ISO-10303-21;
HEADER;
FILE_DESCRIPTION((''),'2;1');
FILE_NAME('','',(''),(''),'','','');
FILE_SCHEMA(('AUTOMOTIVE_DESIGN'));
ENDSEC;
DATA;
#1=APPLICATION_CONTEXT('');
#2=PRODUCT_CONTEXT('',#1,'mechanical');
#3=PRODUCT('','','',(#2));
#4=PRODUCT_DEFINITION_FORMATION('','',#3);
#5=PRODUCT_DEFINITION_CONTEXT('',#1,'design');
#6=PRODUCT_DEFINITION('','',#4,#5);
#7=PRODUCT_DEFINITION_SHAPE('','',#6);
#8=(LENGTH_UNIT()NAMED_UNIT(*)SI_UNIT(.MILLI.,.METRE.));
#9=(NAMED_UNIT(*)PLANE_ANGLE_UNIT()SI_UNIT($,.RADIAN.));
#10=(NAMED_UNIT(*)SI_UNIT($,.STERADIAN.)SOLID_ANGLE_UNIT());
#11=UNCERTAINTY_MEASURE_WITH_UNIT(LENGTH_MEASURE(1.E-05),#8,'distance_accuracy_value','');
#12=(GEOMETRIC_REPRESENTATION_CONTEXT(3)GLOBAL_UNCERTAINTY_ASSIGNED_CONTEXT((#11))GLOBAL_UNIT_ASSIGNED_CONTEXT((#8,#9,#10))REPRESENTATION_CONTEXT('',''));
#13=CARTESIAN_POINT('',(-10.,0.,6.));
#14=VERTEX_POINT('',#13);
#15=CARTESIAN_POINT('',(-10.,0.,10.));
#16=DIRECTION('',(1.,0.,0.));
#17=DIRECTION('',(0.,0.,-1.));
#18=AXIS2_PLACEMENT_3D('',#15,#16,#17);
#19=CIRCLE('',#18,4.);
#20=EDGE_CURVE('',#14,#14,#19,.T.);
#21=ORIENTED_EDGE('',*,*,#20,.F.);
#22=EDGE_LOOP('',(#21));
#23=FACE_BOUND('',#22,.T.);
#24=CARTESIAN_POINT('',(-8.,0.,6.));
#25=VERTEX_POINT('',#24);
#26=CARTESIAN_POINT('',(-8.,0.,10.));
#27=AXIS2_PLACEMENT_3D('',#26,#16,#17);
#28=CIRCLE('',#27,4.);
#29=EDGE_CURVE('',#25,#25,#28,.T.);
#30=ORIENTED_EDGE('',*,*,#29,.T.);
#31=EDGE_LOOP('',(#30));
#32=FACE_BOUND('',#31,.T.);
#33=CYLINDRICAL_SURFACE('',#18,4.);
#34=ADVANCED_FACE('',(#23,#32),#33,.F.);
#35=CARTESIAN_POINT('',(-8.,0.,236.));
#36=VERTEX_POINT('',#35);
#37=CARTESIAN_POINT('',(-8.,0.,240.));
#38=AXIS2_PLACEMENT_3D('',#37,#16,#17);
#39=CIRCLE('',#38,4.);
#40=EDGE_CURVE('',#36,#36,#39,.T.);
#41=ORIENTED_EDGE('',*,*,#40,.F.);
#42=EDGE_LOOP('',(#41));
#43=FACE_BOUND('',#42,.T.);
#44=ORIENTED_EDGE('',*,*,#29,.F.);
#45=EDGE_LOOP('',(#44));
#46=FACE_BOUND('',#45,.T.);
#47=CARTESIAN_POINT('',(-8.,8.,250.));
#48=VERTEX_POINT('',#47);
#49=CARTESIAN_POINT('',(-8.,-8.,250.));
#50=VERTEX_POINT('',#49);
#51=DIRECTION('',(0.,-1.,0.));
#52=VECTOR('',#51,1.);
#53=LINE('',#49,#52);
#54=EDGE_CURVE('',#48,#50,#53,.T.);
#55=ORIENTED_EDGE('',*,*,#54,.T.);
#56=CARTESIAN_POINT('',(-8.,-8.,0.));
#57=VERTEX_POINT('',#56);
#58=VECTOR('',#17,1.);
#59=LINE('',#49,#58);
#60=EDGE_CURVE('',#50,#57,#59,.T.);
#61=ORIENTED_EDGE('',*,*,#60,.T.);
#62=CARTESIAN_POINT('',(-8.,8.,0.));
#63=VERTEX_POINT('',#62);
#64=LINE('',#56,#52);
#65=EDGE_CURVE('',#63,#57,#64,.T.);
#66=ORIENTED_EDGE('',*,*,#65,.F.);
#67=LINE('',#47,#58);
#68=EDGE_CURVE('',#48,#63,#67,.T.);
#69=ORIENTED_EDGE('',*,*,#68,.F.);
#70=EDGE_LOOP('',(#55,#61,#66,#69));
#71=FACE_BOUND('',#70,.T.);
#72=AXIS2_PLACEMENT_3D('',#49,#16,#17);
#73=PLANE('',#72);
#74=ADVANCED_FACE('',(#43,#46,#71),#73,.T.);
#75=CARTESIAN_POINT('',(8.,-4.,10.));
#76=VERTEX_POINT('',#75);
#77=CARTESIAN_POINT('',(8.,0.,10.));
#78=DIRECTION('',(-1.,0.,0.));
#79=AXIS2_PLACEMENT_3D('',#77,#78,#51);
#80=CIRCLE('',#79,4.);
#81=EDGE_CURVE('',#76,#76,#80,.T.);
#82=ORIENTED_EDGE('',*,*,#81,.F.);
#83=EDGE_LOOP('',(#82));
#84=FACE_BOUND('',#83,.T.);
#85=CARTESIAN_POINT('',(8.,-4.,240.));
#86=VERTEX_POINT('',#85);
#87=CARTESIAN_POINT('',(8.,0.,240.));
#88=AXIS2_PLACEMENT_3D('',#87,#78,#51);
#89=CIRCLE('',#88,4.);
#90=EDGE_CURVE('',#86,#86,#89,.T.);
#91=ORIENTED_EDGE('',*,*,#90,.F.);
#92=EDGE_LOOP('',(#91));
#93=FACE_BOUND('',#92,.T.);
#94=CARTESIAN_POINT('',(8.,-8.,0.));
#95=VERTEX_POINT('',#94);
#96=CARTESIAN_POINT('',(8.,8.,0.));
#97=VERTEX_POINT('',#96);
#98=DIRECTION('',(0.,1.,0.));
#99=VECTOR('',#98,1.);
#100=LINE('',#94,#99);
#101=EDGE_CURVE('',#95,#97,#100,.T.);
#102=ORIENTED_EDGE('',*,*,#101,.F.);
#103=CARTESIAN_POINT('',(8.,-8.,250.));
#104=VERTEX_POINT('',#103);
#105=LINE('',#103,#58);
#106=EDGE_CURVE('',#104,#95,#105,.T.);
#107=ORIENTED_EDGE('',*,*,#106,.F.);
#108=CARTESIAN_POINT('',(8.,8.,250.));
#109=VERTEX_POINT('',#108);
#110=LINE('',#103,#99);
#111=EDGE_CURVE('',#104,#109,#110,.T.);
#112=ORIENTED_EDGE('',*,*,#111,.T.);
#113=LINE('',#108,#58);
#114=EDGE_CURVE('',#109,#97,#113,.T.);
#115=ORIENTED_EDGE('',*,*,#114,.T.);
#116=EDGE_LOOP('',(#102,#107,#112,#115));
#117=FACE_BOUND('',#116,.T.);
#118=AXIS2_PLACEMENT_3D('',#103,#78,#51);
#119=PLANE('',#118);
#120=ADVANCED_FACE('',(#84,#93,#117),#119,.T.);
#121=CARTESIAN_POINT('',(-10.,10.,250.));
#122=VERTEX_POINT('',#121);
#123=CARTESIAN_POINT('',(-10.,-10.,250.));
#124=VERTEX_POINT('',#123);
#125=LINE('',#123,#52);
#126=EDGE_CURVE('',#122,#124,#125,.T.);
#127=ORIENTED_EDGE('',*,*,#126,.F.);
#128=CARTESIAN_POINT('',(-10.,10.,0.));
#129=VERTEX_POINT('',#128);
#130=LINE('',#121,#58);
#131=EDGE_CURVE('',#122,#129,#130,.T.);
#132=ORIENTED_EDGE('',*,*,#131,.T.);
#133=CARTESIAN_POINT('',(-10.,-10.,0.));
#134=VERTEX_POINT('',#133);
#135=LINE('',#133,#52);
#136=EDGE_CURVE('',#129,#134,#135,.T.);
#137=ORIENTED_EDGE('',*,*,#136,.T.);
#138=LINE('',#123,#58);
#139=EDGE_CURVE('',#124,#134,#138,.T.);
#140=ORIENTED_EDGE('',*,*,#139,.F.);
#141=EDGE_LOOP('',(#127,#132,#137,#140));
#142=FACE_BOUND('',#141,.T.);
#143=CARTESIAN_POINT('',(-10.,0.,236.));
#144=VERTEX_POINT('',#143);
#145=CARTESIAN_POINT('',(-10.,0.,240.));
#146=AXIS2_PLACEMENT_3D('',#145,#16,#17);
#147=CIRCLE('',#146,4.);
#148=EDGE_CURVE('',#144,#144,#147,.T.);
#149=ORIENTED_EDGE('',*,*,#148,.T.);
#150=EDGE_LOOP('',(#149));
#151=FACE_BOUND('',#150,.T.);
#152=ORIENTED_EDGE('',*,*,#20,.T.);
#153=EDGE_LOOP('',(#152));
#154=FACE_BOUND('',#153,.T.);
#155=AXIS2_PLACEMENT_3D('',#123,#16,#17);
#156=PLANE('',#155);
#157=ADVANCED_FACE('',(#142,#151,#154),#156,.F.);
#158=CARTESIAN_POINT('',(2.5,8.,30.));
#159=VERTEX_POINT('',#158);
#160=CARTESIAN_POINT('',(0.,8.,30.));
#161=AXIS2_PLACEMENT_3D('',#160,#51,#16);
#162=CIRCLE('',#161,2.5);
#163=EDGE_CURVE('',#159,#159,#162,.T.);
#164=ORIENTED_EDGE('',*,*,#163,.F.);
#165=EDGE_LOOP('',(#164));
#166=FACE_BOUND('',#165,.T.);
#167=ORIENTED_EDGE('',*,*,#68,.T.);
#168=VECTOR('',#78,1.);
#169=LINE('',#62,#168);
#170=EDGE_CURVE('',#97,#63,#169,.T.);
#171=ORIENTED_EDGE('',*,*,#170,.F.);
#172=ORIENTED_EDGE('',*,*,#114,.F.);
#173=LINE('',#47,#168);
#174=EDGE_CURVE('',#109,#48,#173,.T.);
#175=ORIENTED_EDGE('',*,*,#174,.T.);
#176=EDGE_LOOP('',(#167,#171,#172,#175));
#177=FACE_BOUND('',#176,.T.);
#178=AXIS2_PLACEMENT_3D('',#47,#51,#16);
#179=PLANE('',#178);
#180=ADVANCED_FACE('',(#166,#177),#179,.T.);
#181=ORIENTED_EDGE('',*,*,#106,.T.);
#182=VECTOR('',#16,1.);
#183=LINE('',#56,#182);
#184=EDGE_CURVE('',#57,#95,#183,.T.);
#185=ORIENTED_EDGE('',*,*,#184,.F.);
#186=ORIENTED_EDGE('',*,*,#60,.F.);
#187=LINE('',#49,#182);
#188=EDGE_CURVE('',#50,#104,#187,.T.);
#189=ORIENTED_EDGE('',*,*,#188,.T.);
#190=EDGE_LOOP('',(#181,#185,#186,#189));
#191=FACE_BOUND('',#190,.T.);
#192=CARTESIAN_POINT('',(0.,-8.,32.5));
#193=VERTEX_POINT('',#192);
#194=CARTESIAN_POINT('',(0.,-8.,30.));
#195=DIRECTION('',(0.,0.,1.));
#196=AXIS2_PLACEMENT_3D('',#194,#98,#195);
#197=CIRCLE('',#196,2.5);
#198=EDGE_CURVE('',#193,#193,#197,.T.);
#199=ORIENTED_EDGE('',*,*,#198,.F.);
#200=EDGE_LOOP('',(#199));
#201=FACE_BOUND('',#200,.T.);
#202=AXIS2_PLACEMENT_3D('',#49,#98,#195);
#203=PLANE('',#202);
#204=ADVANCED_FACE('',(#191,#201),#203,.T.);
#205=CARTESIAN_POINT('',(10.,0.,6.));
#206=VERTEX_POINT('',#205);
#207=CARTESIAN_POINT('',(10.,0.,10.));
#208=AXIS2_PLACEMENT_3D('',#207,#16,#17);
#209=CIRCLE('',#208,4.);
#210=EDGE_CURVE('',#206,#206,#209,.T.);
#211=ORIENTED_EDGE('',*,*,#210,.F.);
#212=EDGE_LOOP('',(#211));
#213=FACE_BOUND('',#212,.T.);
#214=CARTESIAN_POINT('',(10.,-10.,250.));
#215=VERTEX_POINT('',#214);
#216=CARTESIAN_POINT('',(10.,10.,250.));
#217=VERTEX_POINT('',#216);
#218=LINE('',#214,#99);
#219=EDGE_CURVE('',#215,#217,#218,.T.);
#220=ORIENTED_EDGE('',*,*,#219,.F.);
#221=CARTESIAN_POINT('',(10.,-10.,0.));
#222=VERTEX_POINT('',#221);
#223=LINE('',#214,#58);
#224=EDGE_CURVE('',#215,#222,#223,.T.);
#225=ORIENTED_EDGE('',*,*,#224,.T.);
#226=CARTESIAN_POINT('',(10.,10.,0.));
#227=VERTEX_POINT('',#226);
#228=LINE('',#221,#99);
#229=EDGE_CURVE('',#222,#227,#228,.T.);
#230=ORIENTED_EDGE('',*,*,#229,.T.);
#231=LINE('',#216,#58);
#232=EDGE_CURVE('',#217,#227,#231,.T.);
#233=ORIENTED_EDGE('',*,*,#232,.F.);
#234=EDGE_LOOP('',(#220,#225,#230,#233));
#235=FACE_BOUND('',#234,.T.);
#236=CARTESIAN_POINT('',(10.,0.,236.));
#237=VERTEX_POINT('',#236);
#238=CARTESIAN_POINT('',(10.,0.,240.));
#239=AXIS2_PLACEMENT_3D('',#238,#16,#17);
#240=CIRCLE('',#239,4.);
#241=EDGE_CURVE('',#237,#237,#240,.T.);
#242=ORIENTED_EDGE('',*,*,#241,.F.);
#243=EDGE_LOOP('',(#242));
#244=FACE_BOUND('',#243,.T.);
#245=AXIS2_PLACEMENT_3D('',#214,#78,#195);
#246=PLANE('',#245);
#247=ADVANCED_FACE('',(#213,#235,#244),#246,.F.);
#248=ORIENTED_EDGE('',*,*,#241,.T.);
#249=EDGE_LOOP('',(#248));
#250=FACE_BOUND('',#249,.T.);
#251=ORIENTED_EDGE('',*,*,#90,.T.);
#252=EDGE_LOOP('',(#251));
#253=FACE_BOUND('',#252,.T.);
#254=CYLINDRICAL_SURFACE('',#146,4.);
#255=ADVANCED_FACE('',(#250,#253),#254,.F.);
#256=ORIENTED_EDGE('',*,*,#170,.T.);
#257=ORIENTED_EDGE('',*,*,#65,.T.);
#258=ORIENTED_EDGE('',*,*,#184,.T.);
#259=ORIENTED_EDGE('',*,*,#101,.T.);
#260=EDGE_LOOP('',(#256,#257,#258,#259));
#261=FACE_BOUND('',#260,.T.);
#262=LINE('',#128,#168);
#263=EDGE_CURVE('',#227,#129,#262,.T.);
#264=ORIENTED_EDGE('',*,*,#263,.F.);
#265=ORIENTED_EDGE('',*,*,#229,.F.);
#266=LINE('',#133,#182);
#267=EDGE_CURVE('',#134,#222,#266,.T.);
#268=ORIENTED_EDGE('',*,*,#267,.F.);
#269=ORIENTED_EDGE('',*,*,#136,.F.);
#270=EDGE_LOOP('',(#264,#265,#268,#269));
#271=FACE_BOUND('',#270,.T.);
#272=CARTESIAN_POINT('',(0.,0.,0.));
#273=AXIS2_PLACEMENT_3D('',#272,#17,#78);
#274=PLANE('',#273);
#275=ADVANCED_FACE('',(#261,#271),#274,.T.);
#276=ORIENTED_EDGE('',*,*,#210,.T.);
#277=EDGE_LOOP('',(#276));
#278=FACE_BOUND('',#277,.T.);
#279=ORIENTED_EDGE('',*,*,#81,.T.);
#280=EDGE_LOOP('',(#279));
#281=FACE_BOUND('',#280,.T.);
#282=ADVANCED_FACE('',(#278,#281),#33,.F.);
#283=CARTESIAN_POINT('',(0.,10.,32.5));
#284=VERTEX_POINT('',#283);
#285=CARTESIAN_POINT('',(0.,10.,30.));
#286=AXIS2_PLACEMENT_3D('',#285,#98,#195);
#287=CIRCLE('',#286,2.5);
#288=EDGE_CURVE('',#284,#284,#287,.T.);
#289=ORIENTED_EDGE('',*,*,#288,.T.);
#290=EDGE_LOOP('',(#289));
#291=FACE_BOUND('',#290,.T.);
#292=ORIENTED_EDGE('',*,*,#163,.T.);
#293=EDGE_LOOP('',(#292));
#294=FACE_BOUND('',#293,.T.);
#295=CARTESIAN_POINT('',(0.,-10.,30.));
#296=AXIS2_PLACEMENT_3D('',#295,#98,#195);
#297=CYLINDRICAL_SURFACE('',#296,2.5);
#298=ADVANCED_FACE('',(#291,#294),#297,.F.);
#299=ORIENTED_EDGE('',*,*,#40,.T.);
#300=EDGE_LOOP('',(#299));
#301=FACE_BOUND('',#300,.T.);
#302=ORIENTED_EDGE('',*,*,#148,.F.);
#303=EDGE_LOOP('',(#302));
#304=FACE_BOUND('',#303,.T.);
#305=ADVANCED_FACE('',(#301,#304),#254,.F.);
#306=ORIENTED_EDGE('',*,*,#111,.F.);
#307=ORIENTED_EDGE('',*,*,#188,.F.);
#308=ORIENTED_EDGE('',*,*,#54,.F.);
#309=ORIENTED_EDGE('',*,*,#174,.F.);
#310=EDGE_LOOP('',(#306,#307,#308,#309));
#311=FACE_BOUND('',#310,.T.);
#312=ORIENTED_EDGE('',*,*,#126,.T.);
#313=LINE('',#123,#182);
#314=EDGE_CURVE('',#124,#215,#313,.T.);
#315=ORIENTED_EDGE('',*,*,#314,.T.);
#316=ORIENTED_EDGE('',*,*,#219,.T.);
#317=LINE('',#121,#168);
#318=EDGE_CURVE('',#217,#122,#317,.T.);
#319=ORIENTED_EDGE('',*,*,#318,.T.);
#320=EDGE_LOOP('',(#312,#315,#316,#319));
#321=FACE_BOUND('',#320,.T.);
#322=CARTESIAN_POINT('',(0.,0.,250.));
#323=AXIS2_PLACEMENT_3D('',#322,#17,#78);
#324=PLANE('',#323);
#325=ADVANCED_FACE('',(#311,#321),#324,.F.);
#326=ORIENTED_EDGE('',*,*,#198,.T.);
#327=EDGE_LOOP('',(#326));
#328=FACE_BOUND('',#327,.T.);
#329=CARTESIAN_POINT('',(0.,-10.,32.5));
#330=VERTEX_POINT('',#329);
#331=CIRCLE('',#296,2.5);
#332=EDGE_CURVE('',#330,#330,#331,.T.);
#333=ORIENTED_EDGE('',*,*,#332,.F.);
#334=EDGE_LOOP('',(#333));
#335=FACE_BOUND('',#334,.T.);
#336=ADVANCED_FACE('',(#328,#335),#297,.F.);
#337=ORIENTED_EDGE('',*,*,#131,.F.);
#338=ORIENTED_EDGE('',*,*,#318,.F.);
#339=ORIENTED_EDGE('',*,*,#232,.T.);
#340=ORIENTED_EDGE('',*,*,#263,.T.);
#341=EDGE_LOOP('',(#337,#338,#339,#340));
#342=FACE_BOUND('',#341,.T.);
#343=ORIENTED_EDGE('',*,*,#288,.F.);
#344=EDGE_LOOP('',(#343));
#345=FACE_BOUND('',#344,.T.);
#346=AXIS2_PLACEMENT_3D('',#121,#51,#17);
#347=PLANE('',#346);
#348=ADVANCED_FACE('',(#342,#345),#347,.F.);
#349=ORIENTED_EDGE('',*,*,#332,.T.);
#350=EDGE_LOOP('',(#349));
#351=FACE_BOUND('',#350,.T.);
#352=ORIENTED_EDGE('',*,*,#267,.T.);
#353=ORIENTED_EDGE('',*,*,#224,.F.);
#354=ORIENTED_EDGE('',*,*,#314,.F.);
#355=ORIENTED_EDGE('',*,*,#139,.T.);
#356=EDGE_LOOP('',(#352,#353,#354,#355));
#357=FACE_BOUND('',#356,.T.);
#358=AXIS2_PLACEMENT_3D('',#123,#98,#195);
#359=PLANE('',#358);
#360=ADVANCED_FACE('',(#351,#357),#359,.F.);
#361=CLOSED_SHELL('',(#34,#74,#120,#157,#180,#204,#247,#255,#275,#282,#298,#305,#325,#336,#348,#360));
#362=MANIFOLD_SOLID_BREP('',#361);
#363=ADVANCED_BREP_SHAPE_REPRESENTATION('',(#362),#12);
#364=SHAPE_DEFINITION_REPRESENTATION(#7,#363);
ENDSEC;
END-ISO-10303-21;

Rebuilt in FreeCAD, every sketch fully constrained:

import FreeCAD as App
import Part
import Sketcher

V = App.Vector

doc = App.newDocument("Part")
body = doc.addObject("PartDesign::Body", "Body")

# Sketch on XY plane
sketch1 = body.newObject("Sketcher::SketchObject", "Sketch")
sketch1.AttachmentSupport = (doc.getObject("XY_Plane"), [""])
sketch1.MapMode = "FlatFace"
sketch1.addGeometry(Part.LineSegment(V(-10, 10, 0), V(-10, -10, 0)), False)
sketch1.addGeometry(Part.LineSegment(V(-10, -10, 0), V(10, -10, 0)), False)
sketch1.addGeometry(Part.LineSegment(V(10, -10, 0), V(10, 10, 0)), False)
sketch1.addGeometry(Part.LineSegment(V(10, 10, 0), V(-10, 10, 0)), False)
sketch1.addGeometry(Part.LineSegment(V(8, -8, 0), V(-8, -8, 0)), False)
sketch1.addGeometry(Part.LineSegment(V(-8, -8, 0), V(-8, 8, 0)), False)
sketch1.addGeometry(Part.LineSegment(V(-8, 8, 0), V(8, 8, 0)), False)
sketch1.addGeometry(Part.LineSegment(V(8, 8, 0), V(8, -8, 0)), False)
sketch1.addConstraint(Sketcher.Constraint("Coincident", 0, 2, 1, 1))
sketch1.addConstraint(Sketcher.Constraint("Coincident", 1, 2, 2, 1))
sketch1.addConstraint(Sketcher.Constraint("Coincident", 2, 2, 3, 1))
sketch1.addConstraint(Sketcher.Constraint("Coincident", 3, 2, 0, 1))
sketch1.addConstraint(Sketcher.Constraint("Coincident", 4, 2, 5, 1))
sketch1.addConstraint(Sketcher.Constraint("Coincident", 5, 2, 6, 1))
sketch1.addConstraint(Sketcher.Constraint("Coincident", 6, 2, 7, 1))
sketch1.addConstraint(Sketcher.Constraint("Coincident", 7, 2, 4, 1))
sketch1.addConstraint(Sketcher.Constraint("Vertical", 0))
sketch1.addConstraint(Sketcher.Constraint("Horizontal", 1))
sketch1.addConstraint(Sketcher.Constraint("Vertical", 2))
sketch1.addConstraint(Sketcher.Constraint("Horizontal", 3))
sketch1.addConstraint(Sketcher.Constraint("Horizontal", 4))
sketch1.addConstraint(Sketcher.Constraint("Vertical", 5))
sketch1.addConstraint(Sketcher.Constraint("Horizontal", 6))
sketch1.addConstraint(Sketcher.Constraint("Vertical", 7))
sketch1.addConstraint(Sketcher.Constraint("Symmetric", 0, 2, 2, 2, -1, 1))
sketch1.addConstraint(Sketcher.Constraint("Symmetric", 4, 2, 6, 2, -1, 1))
sketch1.addConstraint(Sketcher.Constraint("Equal", 3, 0))
sketch1.addConstraint(Sketcher.Constraint("Equal", 6, 5))
sketch1.addConstraint(Sketcher.Constraint("DistanceX", 1, 1, 1, 2, 20.0))
sketch1.addConstraint(Sketcher.Constraint("DistanceX", 4, 2, 4, 1, 16.0))
pad1 = body.newObject("PartDesign::Pad", "Pad")
pad1.Profile = sketch1
pad1.Length = 250

# Sketch on YZ plane
sketch2 = body.newObject("Sketcher::SketchObject", "Sketch001")
sketch2.AttachmentSupport = (doc.getObject("YZ_Plane"), [""])
sketch2.MapMode = "FlatFace"
sketch2.AttachmentOffset = App.Placement(V(0, 0, 10), App.Rotation())
sketch2.addGeometry(Part.Circle(V(0, 10, 0), V(0, 0, 1), 4), False)
sketch2.addGeometry(Part.Circle(V(0, 240, 0), V(0, 0, 1), 4), False)
sketch2.addConstraint(Sketcher.Constraint("Equal", 0, 1))
sketch2.addConstraint(Sketcher.Constraint("PointOnObject", 0, 3, -2))
sketch2.addConstraint(Sketcher.Constraint("PointOnObject", 1, 3, -2))
sketch2.addConstraint(Sketcher.Constraint("Diameter", 0, 8.0))
sketch2.addConstraint(Sketcher.Constraint("DistanceY", -1, 1, 0, 3, 10.0))
sketch2.addConstraint(Sketcher.Constraint("DistanceY", -1, 1, 1, 3, 240.0))
pocket1 = body.newObject("PartDesign::Pocket", "Pocket")
pocket1.Profile = sketch2
pocket1.Type = "ThroughAll"

# Sketch on XZ plane
sketch3 = body.newObject("Sketcher::SketchObject", "Sketch002")
sketch3.AttachmentSupport = (doc.getObject("XZ_Plane"), [""])
sketch3.MapMode = "FlatFace"
sketch3.AttachmentOffset = App.Placement(V(0, 0, -10), App.Rotation())
sketch3.addGeometry(Part.Circle(V(0, 30, 0), V(0, 0, 1), 2.5), False)
sketch3.addConstraint(Sketcher.Constraint("PointOnObject", 0, 3, -2))
sketch3.addConstraint(Sketcher.Constraint("Diameter", 0, 5.0))
sketch3.addConstraint(Sketcher.Constraint("DistanceY", -1, 1, 0, 3, 30.0))
pocket2 = body.newObject("PartDesign::Pocket", "Pocket001")
pocket2.Profile = sketch3
pocket2.Type = "ThroughAll"
pocket2.Reversed = True

doc.recompute()
